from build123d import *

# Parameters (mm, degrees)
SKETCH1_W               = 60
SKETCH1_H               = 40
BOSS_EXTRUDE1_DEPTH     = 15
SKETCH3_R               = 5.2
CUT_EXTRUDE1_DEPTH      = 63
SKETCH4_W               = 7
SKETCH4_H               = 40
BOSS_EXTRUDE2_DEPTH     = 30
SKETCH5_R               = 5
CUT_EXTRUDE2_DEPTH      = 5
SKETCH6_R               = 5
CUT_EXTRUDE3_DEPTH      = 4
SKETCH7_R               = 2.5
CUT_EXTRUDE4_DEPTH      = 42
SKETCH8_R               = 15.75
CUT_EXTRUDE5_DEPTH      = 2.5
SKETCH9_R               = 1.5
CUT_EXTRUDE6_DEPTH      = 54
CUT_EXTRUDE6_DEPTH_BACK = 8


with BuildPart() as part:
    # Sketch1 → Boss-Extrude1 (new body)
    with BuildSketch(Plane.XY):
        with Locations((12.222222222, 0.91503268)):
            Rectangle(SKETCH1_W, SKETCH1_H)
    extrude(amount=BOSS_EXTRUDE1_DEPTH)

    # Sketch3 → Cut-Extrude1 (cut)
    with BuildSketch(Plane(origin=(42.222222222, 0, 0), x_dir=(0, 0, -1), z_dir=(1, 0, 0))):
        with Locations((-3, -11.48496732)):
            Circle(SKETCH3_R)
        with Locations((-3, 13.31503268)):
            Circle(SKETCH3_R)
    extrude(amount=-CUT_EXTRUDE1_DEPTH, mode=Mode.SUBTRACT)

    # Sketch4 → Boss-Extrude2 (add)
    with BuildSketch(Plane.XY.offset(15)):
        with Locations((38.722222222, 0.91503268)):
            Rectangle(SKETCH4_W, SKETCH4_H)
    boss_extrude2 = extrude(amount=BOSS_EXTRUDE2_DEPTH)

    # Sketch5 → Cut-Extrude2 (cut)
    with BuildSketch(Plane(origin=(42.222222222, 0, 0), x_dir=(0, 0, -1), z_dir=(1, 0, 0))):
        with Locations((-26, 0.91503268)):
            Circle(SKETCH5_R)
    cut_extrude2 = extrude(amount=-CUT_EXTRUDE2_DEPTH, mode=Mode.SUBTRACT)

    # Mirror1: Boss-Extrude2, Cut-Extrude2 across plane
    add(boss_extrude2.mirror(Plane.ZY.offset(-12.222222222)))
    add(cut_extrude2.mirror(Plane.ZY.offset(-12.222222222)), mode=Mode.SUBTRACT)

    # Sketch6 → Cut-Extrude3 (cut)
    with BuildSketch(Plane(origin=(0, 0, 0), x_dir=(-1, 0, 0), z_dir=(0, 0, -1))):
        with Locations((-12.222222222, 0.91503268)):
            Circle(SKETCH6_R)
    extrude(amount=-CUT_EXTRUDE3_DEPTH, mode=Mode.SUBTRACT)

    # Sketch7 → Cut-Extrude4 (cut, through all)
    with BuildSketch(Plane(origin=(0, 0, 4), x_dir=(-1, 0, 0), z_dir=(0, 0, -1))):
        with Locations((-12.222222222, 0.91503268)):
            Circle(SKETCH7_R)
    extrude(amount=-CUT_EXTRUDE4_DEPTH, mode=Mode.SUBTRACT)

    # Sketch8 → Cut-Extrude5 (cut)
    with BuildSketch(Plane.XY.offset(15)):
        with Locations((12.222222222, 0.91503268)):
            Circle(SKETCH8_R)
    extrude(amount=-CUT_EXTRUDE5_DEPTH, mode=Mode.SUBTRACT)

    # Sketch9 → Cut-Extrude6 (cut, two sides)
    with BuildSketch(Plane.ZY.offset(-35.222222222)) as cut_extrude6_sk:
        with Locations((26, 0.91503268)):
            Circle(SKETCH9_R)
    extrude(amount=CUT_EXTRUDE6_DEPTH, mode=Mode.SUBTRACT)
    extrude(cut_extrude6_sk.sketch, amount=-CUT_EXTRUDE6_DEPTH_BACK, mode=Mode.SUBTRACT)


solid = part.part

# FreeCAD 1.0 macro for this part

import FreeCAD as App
import Part
import Sketcher
Q = App.Units.Quantity

doc = App.newDocument("Part")
body = doc.addObject("PartDesign::Body", "Body")

# Sketch on XY plane
sketch1 = doc.addObject("Sketcher::SketchObject", "Sketch")
body.addObject(sketch1)
sketch1.AttachmentSupport = (doc.XY_Plane, [""])
sketch1.MapMode = "FlatFace"
sketch1.addGeometry([
    Part.LineSegment(App.Vector(-18, 21, 0), App.Vector(-18, -19, 0)),
    Part.LineSegment(App.Vector(-18, -19, 0), App.Vector(42, -19, 0)),
    Part.LineSegment(App.Vector(42, -19, 0), App.Vector(42, 21, 0)),
    Part.LineSegment(App.Vector(42, 21, 0), App.Vector(-18, 21, 0)),
], False)
sketch1.addConstraint([
    Sketcher.Constraint("Coincident", 0, 2, 1, 1),
    Sketcher.Constraint("Coincident", 1, 2, 2, 1),
    Sketcher.Constraint("Coincident", 2, 2, 3, 1),
    Sketcher.Constraint("Coincident", 3, 2, 0, 1),
    Sketcher.Constraint("Vertical", 0),
    Sketcher.Constraint("Horizontal", 1),
    Sketcher.Constraint("Vertical", 2),
    Sketcher.Constraint("Horizontal", 3),
    Sketcher.Constraint("DistanceX", 1, 1, 1, 2, Q("60 mm")),
    Sketcher.Constraint("DistanceY", 0, 2, 0, 1, Q("40 mm")),
    Sketcher.Constraint("DistanceX", 0, 2, -1, 1, Q("17.777778 mm")),
    Sketcher.Constraint("DistanceY", 0, 2, -1, 1, Q("19.084967 mm")),
])
pad1 = doc.addObject("PartDesign::Pad", "Pad")
body.addObject(pad1)
pad1.Profile = sketch1
pad1.Length = 15

# Sketch on YZ plane
sketch2 = doc.addObject("Sketcher::SketchObject", "Sketch001")
body.addObject(sketch2)
sketch2.AttachmentSupport = (doc.YZ_Plane, [""])
sketch2.MapMode = "FlatFace"
sketch2.AttachmentOffset = App.Placement(App.Vector(0, 0, 42.222222), App.Rotation())
sketch2.addGeometry([
    Part.Circle(App.Vector(-11, 3, 0), App.Vector(0, 0, 1), 5),
    Part.Circle(App.Vector(13, 3, 0), App.Vector(0, 0, 1), 5),
], False)
sketch2.addConstraint([
    Sketcher.Constraint("Equal", 0, 1),
    Sketcher.Constraint("Horizontal", 0, 3, 1, 3),
    Sketcher.Constraint("Diameter", 0, Q("10.4 mm")),
    Sketcher.Constraint("DistanceY", -1, 1, 0, 3, Q("3 mm")),
    Sketcher.Constraint("DistanceX", 0, 3, 1, 3, Q("24.8 mm")),
    Sketcher.Constraint("DistanceX", 0, 3, -1, 1, Q("11.484967 mm")),
])
pocket1 = doc.addObject("PartDesign::Pocket", "Pocket")
body.addObject(pocket1)
pocket1.Profile = sketch2
pocket1.Length = 63

# Sketch on XY plane
sketch3 = doc.addObject("Sketcher::SketchObject", "Sketch002")
body.addObject(sketch3)
sketch3.AttachmentSupport = (doc.XY_Plane, [""])
sketch3.MapMode = "FlatFace"
sketch3.AttachmentOffset = App.Placement(App.Vector(0, 0, 15), App.Rotation())
sketch3.addGeometry([
    Part.LineSegment(App.Vector(35, 21, 0), App.Vector(35, -19, 0)),
    Part.LineSegment(App.Vector(35, -19, 0), App.Vector(42, -19, 0)),
    Part.LineSegment(App.Vector(42, -19, 0), App.Vector(42, 21, 0)),
    Part.LineSegment(App.Vector(42, 21, 0), App.Vector(35, 21, 0)),
], False)
sketch3.addConstraint([
    Sketcher.Constraint("Coincident", 0, 2, 1, 1),
    Sketcher.Constraint("Coincident", 1, 2, 2, 1),
    Sketcher.Constraint("Coincident", 2, 2, 3, 1),
    Sketcher.Constraint("Coincident", 3, 2, 0, 1),
    Sketcher.Constraint("Vertical", 0),
    Sketcher.Constraint("Horizontal", 1),
    Sketcher.Constraint("Vertical", 2),
    Sketcher.Constraint("Horizontal", 3),
    Sketcher.Constraint("DistanceX", 1, 1, 1, 2, Q("7 mm")),
    Sketcher.Constraint("DistanceY", 0, 2, 0, 1, Q("40 mm")),
    Sketcher.Constraint("DistanceX", -1, 1, 0, 2, Q("35.222222 mm")),
    Sketcher.Constraint("DistanceY", 0, 2, -1, 1, Q("19.084967 mm")),
])
pad2 = doc.addObject("PartDesign::Pad", "Pad001")
body.addObject(pad2)
pad2.Profile = sketch3
pad2.Length = 30

# Sketch on YZ plane
sketch4 = doc.addObject("Sketcher::SketchObject", "Sketch003")
body.addObject(sketch4)
sketch4.AttachmentSupport = (doc.YZ_Plane, [""])
sketch4.MapMode = "FlatFace"
sketch4.AttachmentOffset = App.Placement(App.Vector(0, 0, 42.222222), App.Rotation())
sketch4.addGeometry(Part.Circle(App.Vector(1, 26, 0), App.Vector(0, 0, 1), 5), False)
sketch4.addConstraint([
    Sketcher.Constraint("Diameter", 0, Q("10 mm")),
    Sketcher.Constraint("DistanceY", -1, 1, 0, 3, Q("26 mm")),
    Sketcher.Constraint("DistanceX", -1, 1, 0, 3, Q("0.915033 mm")),
])
pocket2 = doc.addObject("PartDesign::Pocket", "Pocket001")
body.addObject(pocket2)
pocket2.Profile = sketch4
pocket2.Length = 5
doc.recompute()

datumplane = doc.addObject("PartDesign::Plane", "DatumPlane")
body.addObject(datumplane)
datumplane.AttachmentSupport = (doc.YZ_Plane, [""])
datumplane.MapMode = "FlatFace"
datumplane.AttachmentOffset = App.Placement(App.Vector(0, 0, 12.222222), App.Rotation())
mirrored = doc.addObject("PartDesign::Mirrored", "Mirrored")
body.addObject(mirrored)
mirrored.Originals = [pad2, pocket2]
mirrored.MirrorPlane = (datumplane, [""])
body.Tip = mirrored

# Sketch on XY plane
sketch5 = doc.addObject("Sketcher::SketchObject", "Sketch004")
body.addObject(sketch5)
sketch5.AttachmentSupport = (doc.XY_Plane, [""])
sketch5.MapMode = "FlatFace"
sketch5.addGeometry(Part.Circle(App.Vector(12, 1, 0), App.Vector(0, 0, 1), 5), False)
sketch5.addConstraint([
    Sketcher.Constraint("Diameter", 0, Q("10 mm")),
    Sketcher.Constraint("DistanceX", -1, 1, 0, 3, Q("12.222222 mm")),
    Sketcher.Constraint("DistanceY", -1, 1, 0, 3, Q("0.915033 mm")),
])
pocket3 = doc.addObject("PartDesign::Pocket", "Pocket002")
body.addObject(pocket3)
pocket3.Profile = sketch5
pocket3.Length = 4
pocket3.Reversed = True

# Sketch on XY plane
sketch6 = doc.addObject("Sketcher::SketchObject", "Sketch005")
body.addObject(sketch6)
sketch6.AttachmentSupport = (doc.XY_Plane, [""])
sketch6.MapMode = "FlatFace"
sketch6.AttachmentOffset = App.Placement(App.Vector(0, 0, 4), App.Rotation())
sketch6.addGeometry(Part.Circle(App.Vector(12.2, 0.9, 0), App.Vector(0, 0, 1), 2.5), False)
sketch6.addConstraint([
    Sketcher.Constraint("Diameter", 0, Q("5 mm")),
    Sketcher.Constraint("DistanceX", -1, 1, 0, 3, Q("12.222222 mm")),
    Sketcher.Constraint("DistanceY", -1, 1, 0, 3, Q("0.915033 mm")),
])
pocket4 = doc.addObject("PartDesign::Pocket", "Pocket003")
body.addObject(pocket4)
pocket4.Profile = sketch6
pocket4.Type = "ThroughAll"
pocket4.Reversed = True

# Sketch on XY plane
sketch7 = doc.addObject("Sketcher::SketchObject", "Sketch006")
body.addObject(sketch7)
sketch7.AttachmentSupport = (doc.XY_Plane, [""])
sketch7.MapMode = "FlatFace"
sketch7.AttachmentOffset = App.Placement(App.Vector(0, 0, 15), App.Rotation())
sketch7.addGeometry(Part.Circle(App.Vector(12, 1, 0), App.Vector(0, 0, 1), 16), False)
sketch7.addConstraint([
    Sketcher.Constraint("Diameter", 0, Q("31.5 mm")),
    Sketcher.Constraint("DistanceX", -1, 1, 0, 3, Q("12.222222 mm")),
    Sketcher.Constraint("DistanceY", -1, 1, 0, 3, Q("0.915033 mm")),
])
pocket5 = doc.addObject("PartDesign::Pocket", "Pocket004")
body.addObject(pocket5)
pocket5.Profile = sketch7
pocket5.Length = 2.5

# Sketch on YZ plane
sketch8 = doc.addObject("Sketcher::SketchObject", "Sketch007")
body.addObject(sketch8)
sketch8.AttachmentSupport = (doc.YZ_Plane, [""])
sketch8.MapMode = "FlatFace"
sketch8.AttachmentOffset = App.Placement(App.Vector(0, 0, 35.222222), App.Rotation())
sketch8.addGeometry(Part.Circle(App.Vector(0.9, 26, 0), App.Vector(0, 0, 1), 1.5), False)
sketch8.addConstraint([
    Sketcher.Constraint("Diameter", 0, Q("3 mm")),
    Sketcher.Constraint("DistanceY", -1, 1, 0, 3, Q("26 mm")),
    Sketcher.Constraint("DistanceX", -1, 1, 0, 3, Q("0.915033 mm")),
])
pocket6 = doc.addObject("PartDesign::Pocket", "Pocket005")
body.addObject(pocket6)
pocket6.Profile = sketch8
pocket6.Type = "ThroughAll"
pocket6.Midplane = True

doc.recompute()
